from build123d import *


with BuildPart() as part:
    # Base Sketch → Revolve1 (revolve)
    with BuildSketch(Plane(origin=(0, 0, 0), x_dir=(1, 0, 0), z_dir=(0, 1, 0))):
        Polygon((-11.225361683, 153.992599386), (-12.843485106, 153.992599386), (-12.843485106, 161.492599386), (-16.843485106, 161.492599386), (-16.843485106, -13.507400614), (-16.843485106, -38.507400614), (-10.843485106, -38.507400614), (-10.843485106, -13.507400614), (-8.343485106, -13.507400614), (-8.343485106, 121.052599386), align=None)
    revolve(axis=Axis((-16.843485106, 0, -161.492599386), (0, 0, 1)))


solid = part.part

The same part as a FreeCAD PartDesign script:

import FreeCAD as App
import Part
import Sketcher
from FreeCAD import Vector
Q = App.Units.Quantity


def add_polygon(sketch, points):
    """Adds a closed chain of lines whose ends are joined by coincident constraints."""
    first, n = sketch.GeometryCount, len(points)
    for a, b in zip(points, points[1:] + points[:1]):
        sketch.addGeometry(Part.LineSegment(App.Vector(*a, 0), App.Vector(*b, 0)), False)
    for i in range(n):
        sketch.addConstraint(Sketcher.Constraint("Coincident", first + i, 2, first + (i + 1) % n, 1))

doc = App.newDocument("Part")
body = doc.addObject("PartDesign::Body", "Body")

sketch1 = body.newObject("Sketcher::SketchObject", "Sketch")
sketch1.AttachmentSupport = (doc.getObject("XZ_Plane"), [""])
sketch1.MapMode = "FlatFace"
add_polygon(sketch1, [(-11.2, -154), (-12.8, -154), (-12.8, -161.5), (-16.8, -161.5), (-16.8, 38.5), (-10.8, 38.5), (-10.8, 13.5), (-8.3, 13.5), (-8.3, -121.1)])
sketch1.addGeometry(Part.LineSegment(Vector(-16.8, -161.5, 0), Vector(-16.8, 38.5, 0)), True)
sketch1.addConstraint(Sketcher.Constraint("Horizontal", 0))
sketch1.addConstraint(Sketcher.Constraint("Vertical", 1))
sketch1.addConstraint(Sketcher.Constraint("Horizontal", 2))
sketch1.addConstraint(Sketcher.Constraint("Vertical", 3))
sketch1.addConstraint(Sketcher.Constraint("Horizontal", 4))
sketch1.addConstraint(Sketcher.Constraint("Vertical", 5))
sketch1.addConstraint(Sketcher.Constraint("Horizontal", 6))
sketch1.addConstraint(Sketcher.Constraint("Vertical", 7))
sketch1.addConstraint(Sketcher.Constraint("Vertical", 9))
sketch1.addConstraint(Sketcher.Constraint("Coincident", 9, 1, 2, 2))
sketch1.addConstraint(Sketcher.Constraint("Horizontal", 4, 2, 9, 2))
sketch1.addConstraint(Sketcher.Constraint("DistanceX", 2, 2, 2, 1, Q("4 mm")))
sketch1.addConstraint(Sketcher.Constraint("DistanceX", 4, 1, 4, 2, Q("6 mm")))
sketch1.addConstraint(Sketcher.Constraint("DistanceY", 3, 1, 3, 2, Q("200 mm")))
sketch1.addConstraint(Sketcher.Constraint("DistanceY", 5, 2, 5, 1, Q("25 mm")))
sketch1.addConstraint(Sketcher.Constraint("Angle", 8, Q("-95 deg")))
sketch1.addConstraint(Sketcher.Constraint("DistanceX", 6, 1, 6, 2, Q("2.5 mm")))
sketch1.addConstraint(Sketcher.Constraint("DistanceY", 1, 2, 1, 1, Q("7.5 mm")))
sketch1.addConstraint(Sketcher.Constraint("DistanceY", 7, 2, 7, 1, Q("134.56 mm")))
sketch1.addConstraint(Sketcher.Constraint("DistanceY", 0, 2, -1, 1, Q("153.992599 mm")))
sketch1.addConstraint(Sketcher.Constraint("DistanceX", 8, 2, -1, 1, Q("11.225362 mm")))
revolution = body.newObject("PartDesign::Revolution", "Revolution")
revolution.Profile = sketch1
revolution.ReferenceAxis = (sketch1, ["Axis0"])
revolution.Angle = 360

doc.recompute()
